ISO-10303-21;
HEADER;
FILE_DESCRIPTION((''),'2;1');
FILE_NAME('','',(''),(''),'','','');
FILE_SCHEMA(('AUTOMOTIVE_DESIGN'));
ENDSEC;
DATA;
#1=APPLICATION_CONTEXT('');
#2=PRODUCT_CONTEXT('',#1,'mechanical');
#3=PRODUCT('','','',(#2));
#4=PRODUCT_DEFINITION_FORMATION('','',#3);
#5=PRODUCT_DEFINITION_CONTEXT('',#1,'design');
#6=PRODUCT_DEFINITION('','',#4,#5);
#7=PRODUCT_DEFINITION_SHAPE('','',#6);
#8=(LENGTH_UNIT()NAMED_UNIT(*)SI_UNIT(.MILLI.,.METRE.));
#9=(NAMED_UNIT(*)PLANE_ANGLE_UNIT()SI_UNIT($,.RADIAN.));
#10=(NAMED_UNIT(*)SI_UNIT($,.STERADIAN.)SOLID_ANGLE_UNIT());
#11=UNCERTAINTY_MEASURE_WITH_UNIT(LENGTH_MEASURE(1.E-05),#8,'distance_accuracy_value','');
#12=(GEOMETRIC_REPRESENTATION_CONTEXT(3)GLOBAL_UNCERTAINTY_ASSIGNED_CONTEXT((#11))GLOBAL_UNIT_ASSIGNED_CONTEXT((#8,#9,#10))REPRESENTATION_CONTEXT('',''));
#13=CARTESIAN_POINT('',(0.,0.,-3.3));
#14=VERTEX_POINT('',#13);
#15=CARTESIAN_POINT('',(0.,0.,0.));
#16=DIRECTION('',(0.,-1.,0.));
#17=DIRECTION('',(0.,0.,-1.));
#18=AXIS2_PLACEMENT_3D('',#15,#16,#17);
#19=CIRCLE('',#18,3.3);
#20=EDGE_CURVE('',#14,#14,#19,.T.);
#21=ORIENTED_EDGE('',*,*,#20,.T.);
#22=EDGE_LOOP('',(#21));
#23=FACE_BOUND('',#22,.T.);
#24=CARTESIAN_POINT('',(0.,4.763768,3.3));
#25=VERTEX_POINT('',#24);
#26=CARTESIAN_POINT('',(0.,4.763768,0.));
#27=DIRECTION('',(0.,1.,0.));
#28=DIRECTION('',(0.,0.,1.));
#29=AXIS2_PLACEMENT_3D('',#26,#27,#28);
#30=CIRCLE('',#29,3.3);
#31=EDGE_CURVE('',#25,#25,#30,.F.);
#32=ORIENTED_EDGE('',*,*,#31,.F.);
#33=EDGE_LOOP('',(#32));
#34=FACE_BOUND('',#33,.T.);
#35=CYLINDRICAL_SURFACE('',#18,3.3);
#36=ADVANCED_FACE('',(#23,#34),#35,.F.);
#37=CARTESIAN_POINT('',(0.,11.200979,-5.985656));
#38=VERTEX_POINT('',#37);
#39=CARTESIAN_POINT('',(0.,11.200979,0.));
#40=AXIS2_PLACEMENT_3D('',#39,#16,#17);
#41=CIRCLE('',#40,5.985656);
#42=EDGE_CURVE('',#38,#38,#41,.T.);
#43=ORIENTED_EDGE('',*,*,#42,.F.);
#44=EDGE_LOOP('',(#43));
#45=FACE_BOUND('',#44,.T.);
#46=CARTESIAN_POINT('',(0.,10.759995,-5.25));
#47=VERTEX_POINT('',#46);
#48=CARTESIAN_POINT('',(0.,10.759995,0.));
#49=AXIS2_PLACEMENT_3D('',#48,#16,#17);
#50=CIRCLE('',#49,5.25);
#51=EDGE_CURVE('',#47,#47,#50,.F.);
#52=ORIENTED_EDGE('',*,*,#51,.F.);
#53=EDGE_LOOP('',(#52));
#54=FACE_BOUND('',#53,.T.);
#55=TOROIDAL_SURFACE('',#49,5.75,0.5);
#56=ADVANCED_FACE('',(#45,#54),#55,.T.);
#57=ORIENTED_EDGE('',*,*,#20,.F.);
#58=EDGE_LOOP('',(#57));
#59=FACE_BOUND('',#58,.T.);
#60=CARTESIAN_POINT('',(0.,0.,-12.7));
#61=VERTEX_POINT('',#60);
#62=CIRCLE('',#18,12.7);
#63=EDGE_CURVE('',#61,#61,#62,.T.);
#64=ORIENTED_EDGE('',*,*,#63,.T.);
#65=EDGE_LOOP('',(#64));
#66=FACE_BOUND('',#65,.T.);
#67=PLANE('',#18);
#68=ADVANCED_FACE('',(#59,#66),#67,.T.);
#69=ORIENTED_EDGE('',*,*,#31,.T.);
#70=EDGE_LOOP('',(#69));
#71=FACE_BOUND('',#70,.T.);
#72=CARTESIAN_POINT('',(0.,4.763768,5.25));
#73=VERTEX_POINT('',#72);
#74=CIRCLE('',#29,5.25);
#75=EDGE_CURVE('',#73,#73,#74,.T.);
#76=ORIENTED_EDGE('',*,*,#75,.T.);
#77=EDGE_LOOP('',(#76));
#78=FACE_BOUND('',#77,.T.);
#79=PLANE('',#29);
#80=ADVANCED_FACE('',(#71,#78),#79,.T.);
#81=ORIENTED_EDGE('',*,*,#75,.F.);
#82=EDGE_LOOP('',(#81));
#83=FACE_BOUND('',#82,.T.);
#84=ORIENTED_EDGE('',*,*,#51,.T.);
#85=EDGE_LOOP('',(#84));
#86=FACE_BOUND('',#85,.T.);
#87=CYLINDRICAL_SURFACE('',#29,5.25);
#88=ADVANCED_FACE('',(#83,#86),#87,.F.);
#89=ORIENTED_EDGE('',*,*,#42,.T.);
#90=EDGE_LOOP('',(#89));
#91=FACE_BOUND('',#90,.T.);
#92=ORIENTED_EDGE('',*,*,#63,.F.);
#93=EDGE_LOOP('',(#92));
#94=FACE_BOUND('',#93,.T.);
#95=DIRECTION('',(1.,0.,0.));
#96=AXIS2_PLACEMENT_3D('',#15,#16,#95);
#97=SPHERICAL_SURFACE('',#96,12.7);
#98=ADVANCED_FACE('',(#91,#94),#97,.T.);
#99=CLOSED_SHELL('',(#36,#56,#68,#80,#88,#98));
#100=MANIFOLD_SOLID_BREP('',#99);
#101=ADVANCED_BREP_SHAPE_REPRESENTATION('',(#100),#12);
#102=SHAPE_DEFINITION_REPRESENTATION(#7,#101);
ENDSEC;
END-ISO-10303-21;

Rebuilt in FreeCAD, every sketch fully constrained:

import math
import FreeCAD as App
import Part
import Sketcher

V = App.Vector
Q = App.Units.Quantity


def edges_at(feature, points):
    """Names of the edges that pass closest to the given points."""
    edges = feature.Shape.Edges
    near = lambda p: min(range(len(edges)), key=lambda i: edges[i].distToShape(Part.Vertex(*p))[0])
    return sorted({f"Edge{near(p) + 1}" for p in points})

doc = App.newDocument("Part")
body = doc.addObject("PartDesign::Body", "Body")

# Sketch on XY plane
sketch1 = body.newObject("Sketcher::SketchObject", "Sketch")
sketch1.AttachmentSupport = (doc.getObject("XY_Plane"), [""])
sketch1.MapMode = "FlatFace"
sketch1.addGeometry(Part.LineSegment(V(0, 0, 0), V(13, 0, 0)), False)
sketch1.addGeometry(Part.ArcOfCircle(Part.Circle(V(0, 0, 0), V(0, 0, 1), 13), math.radians(0), math.radians(90)), False)
sketch1.addGeometry(Part.LineSegment(V(0, 13, 0), V(0, 0, 0)), False)
sketch1.addConstraint(Sketcher.Constraint("Coincident", 0, 2, 1, 1))
sketch1.addConstraint(Sketcher.Constraint("Coincident", 1, 2, 2, 1))
sketch1.addConstraint(Sketcher.Constraint("Coincident", 2, 2, 0, 1))
sketch1.addConstraint(Sketcher.Constraint("Horizontal", 0))
sketch1.addConstraint(Sketcher.Constraint("Vertical", 2))
sketch1.addConstraint(Sketcher.Constraint("Coincident", 1, 3, -1, 1))
sketch1.addConstraint(Sketcher.Constraint("Coincident", 2, 2, -1, 1))
sketch1.addConstraint(Sketcher.Constraint("Radius", 1, Q("12.7 mm")))
revolution = body.newObject("PartDesign::Revolution", "Revolution")
revolution.Profile = sketch1
revolution.ReferenceAxis = (sketch1, ["V_Axis"])
revolution.Angle = 360

# Sketch on XZ plane
sketch2 = body.newObject("Sketcher::SketchObject", "Sketch001")
sketch2.AttachmentSupport = (doc.getObject("XZ_Plane"), [""])
sketch2.MapMode = "FlatFace"
sketch2.addGeometry(Part.Circle(V(0, 0, 0), V(0, 0, 1), 3.3), False)
sketch2.addConstraint(Sketcher.Constraint("Coincident", 0, 3, -1, 1))
sketch2.addConstraint(Sketcher.Constraint("Diameter", 0, Q("6.6 mm")))
doc.recompute()
hole = body.newObject("PartDesign::Hole", "Hole")
hole.Profile = sketch2
hole.ThreadType = "None"
hole.Diameter = 6.6
hole.DepthType = "ThroughAll"

# Sketch on XZ plane
sketch3 = body.newObject("Sketcher::SketchObject", "Sketch002")
sketch3.AttachmentSupport = (doc.getObject("XZ_Plane"), [""])
sketch3.MapMode = "FlatFace"
sketch3.AttachmentOffset = App.Placement(V(0, 0, -12.263768), App.Rotation())
sketch3.addGeometry(Part.Circle(V(0, 0, 0), V(0, 0, 1), 5), False)
sketch3.addConstraint(Sketcher.Constraint("Coincident", 0, 3, -1, 1))
sketch3.addConstraint(Sketcher.Constraint("Diameter", 0, Q("10.5 mm")))
pocket1 = body.newObject("PartDesign::Pocket", "Pocket")
pocket1.Profile = sketch3
pocket1.Length = 7.5
pocket1.Reversed = True
doc.recompute()

fillet = body.newObject("PartDesign::Fillet", "Fillet")
fillet.Base = (pocket1, edges_at(pocket1, [(-3.712, 11.564, -3.712)]))
fillet.Radius = 0.5

doc.recompute()
